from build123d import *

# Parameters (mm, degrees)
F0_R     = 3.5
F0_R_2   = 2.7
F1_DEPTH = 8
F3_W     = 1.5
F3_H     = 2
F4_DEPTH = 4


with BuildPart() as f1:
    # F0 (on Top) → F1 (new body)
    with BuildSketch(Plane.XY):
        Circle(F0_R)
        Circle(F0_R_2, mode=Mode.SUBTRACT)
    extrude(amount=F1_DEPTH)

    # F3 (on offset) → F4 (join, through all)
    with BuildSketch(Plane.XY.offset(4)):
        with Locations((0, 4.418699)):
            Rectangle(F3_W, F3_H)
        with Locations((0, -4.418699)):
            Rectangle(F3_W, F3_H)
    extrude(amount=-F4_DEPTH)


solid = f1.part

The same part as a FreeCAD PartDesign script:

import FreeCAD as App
import Part
import Sketcher
from FreeCAD import Vector
Q = App.Units.Quantity


def add_polygon(sketch, points):
    """Adds a closed chain of lines whose ends are joined by coincident constraints."""
    first, n = sketch.GeometryCount, len(points)
    for a, b in zip(points, points[1:] + points[:1]):
        sketch.addGeometry(Part.LineSegment(App.Vector(*a, 0), App.Vector(*b, 0)), False)
    for i in range(n):
        sketch.addConstraint(Sketcher.Constraint("Coincident", first + i, 2, first + (i + 1) % n, 1))

doc = App.newDocument("Part")
params = doc.addObject("Spreadsheet::Sheet", "Params")
for row, (alias, value) in enumerate([
    ("sketch1_diameter", "7 mm"),
    ("sketch1_diameter2", "5.4 mm"),
    ("pad1_length", "8 mm"),
    ("sketch2_height", "2 mm"),
    ("sketch2_width", "1.5 mm"),
    ("pad2_length", "4 mm"),
], start=1):
    params.set(f"A{row}", alias)
    params.set(f"B{row}", "=" + value)
    params.setAlias(f"B{row}", alias)

body = doc.addObject("PartDesign::Body", "Body")

# Sketch on XY plane
sketch1 = body.newObject("Sketcher::SketchObject", "Sketch")
sketch1.AttachmentSupport = (doc.getObject("XY_Plane"), [""])
sketch1.MapMode = "FlatFace"
sketch1.addGeometry([
    Part.Circle(Vector(0, 0, 0), Vector(0, 0, 1), 3.5),
    Part.Circle(Vector(0, 0, 0), Vector(0, 0, 1), 2.7),
], False)
sketch1.addConstraint([
    Sketcher.Constraint("Coincident", 0, 3, -1, 1),
    Sketcher.Constraint("Coincident", 1, 3, -1, 1),
    Sketcher.Constraint("Diameter", 0, Q("7 mm")),
    Sketcher.Constraint("Diameter", 1, Q("5.4 mm")),
])
sketch1.setExpression("Constraints[2]", "Params.sketch1_diameter")
sketch1.setExpression("Constraints[3]", "Params.sketch1_diameter2")
pad1 = body.newObject("PartDesign::Pad", "Pad")
pad1.Profile = sketch1
pad1.setExpression("Length", "Params.pad1_length")

# Sketch on XY plane
sketch2 = body.newObject("Sketcher::SketchObject", "Sketch001")
sketch2.AttachmentSupport = (doc.getObject("XY_Plane"), [""])
sketch2.MapMode = "FlatFace"
sketch2.AttachmentOffset = App.Placement(Vector(0, 0, 4), App.Rotation())
add_polygon(sketch2, [(-0.75, 5.418699), (-0.75, 3.418699), (0.75, 3.418699), (0.75, 5.418699)])  # lines 0-3
add_polygon(sketch2, [(-0.75, -3.418699), (-0.75, -5.418699), (0.75, -5.418699), (0.75, -3.418699)])  # lines 4-7
sketch2.addConstraint([
    Sketcher.Constraint("Vertical", 0),
    Sketcher.Constraint("Horizontal", 1),
    Sketcher.Constraint("Vertical", 2),
    Sketcher.Constraint("Horizontal", 3),
    Sketcher.Constraint("Vertical", 4),
    Sketcher.Constraint("Horizontal", 5),
    Sketcher.Constraint("Vertical", 6),
    Sketcher.Constraint("Horizontal", 7),
    Sketcher.Constraint("Symmetric", 2, 2, 4, 2, -1, 1),
    Sketcher.Constraint("Symmetric", 0, 2, 6, 2, -1, 1),
    Sketcher.Constraint("Vertical", 3, 2, 4, 2),
    Sketcher.Constraint("DistanceY", 0, 2, 0, 1, Q("2 mm")),
    Sketcher.Constraint("DistanceX", 1, 1, 1, 2, Q("1.5 mm")),
    Sketcher.Constraint("DistanceY", -1, 1, 0, 2, Q("3.418699 mm")),
])
sketch2.setExpression("Constraints[19]", "Params.sketch2_height")
sketch2.setExpression("Constraints[20]", "Params.sketch2_width")
pad2 = body.newObject("PartDesign::Pad", "Pad001")
pad2.Profile = sketch2
pad2.setExpression("Length", "Params.pad2_length")
pad2.Reversed = True

doc.recompute()
